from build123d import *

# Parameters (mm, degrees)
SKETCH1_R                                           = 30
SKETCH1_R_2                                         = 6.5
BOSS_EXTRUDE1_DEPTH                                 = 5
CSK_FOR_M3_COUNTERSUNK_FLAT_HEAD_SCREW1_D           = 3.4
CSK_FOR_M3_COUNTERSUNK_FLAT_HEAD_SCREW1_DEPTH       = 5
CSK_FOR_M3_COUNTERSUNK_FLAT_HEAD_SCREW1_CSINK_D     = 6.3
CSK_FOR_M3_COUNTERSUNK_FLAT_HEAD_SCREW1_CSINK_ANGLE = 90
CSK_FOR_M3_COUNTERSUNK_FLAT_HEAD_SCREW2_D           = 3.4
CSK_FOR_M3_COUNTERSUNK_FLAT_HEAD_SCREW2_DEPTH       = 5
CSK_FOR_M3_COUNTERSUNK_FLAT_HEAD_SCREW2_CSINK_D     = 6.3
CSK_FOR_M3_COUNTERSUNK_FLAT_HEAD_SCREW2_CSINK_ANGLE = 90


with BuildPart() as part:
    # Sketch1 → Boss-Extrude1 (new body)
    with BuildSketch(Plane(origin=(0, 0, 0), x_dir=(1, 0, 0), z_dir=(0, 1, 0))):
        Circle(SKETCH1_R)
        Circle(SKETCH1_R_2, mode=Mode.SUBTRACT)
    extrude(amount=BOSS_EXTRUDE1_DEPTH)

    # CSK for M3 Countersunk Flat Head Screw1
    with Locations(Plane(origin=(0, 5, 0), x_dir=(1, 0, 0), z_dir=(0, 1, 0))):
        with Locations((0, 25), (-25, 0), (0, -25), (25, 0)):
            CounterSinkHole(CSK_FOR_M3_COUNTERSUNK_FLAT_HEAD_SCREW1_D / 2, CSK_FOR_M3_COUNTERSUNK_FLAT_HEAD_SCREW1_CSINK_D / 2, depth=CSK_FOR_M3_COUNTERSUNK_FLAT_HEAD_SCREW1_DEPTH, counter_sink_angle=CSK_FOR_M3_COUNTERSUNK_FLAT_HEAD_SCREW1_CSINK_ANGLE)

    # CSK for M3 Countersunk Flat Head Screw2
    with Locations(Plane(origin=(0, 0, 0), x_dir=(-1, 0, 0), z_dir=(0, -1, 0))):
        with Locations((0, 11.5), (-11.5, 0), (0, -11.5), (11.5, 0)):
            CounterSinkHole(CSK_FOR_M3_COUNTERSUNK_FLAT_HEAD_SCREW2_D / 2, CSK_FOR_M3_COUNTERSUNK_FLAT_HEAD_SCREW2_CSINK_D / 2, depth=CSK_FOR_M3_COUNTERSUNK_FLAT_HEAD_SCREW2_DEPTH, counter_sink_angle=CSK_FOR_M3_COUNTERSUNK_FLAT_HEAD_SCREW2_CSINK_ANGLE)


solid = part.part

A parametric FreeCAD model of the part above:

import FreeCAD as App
import Part
import Sketcher
from FreeCAD import Vector

doc = App.newDocument("Part")
body = doc.addObject("PartDesign::Body", "Body")

sketch1 = doc.addObject("Sketcher::SketchObject", "Sketch")
body.addObject(sketch1)
sketch1.AttachmentSupport = (doc.XZ_Plane, [""])
sketch1.MapMode = "FlatFace"
sketch1.addGeometry([
    Part.Circle(Vector(0, 0, 0), Vector(0, 0, 1), 30),
    Part.Circle(Vector(0, 0, 0), Vector(0, 0, 1), 6),
], False)
sketch1.addConstraint([
    Sketcher.Constraint("Coincident", 0, 3, -1, 1),
    Sketcher.Constraint("Coincident", 1, 3, -1, 1),
    Sketcher.Constraint("Diameter", 0, 60.0),
    Sketcher.Constraint("Diameter", 1, 13.0),
])
pad1 = doc.addObject("PartDesign::Pad", "Pad")
body.addObject(pad1)
pad1.Profile = sketch1
pad1.Length = 5
pad1.Reversed = True

sketch2 = doc.addObject("Sketcher::SketchObject", "Sketch001")
body.addObject(sketch2)
sketch2.AttachmentSupport = (doc.XZ_Plane, [""])
sketch2.MapMode = "FlatFace"
sketch2.AttachmentOffset = App.Placement(Vector(0, 0, -5), App.Rotation())
sketch2.addGeometry([
    Part.Circle(Vector(0, -25, 0), Vector(0, 0, 1), 1.7),
    Part.Circle(Vector(-25, 0, 0), Vector(0, 0, 1), 1.7),
    Part.Circle(Vector(0, 25, 0), Vector(0, 0, 1), 1.7),
    Part.Circle(Vector(25, 0, 0), Vector(0, 0, 1), 1.7),
], False)
sketch2.addConstraint([
    Sketcher.Constraint("Equal", 0, 1),
    Sketcher.Constraint("Equal", 1, 2),
    Sketcher.Constraint("Equal", 2, 3),
    Sketcher.Constraint("Symmetric", 0, 3, 2, 3, -1, 1),
    Sketcher.Constraint("Symmetric", 1, 3, 3, 3, -1, 1),
    Sketcher.Constraint("PointOnObject", 0, 3, -2),
    Sketcher.Constraint("PointOnObject", 1, 3, -1),
    Sketcher.Constraint("Diameter", 0, 3.4),
    Sketcher.Constraint("DistanceY", 0, 3, -1, 1, 25.0),
    Sketcher.Constraint("DistanceX", 1, 3, -1, 1, 25.0),
])
doc.recompute()
hole = doc.addObject("PartDesign::Hole", "Hole")
body.addObject(hole)
hole.Profile = sketch2
hole.ThreadType = "None"
hole.Diameter = 3.4
hole.DepthType = "Dimension"
hole.Depth = 5
hole.DrillPoint = "Flat"
hole.HoleCutType = "Countersink"
hole.HoleCutDiameter = 6.3
hole.HoleCutCountersinkAngle = 90
hole.Reversed = True

sketch3 = doc.addObject("Sketcher::SketchObject", "Sketch002")
body.addObject(sketch3)
sketch3.AttachmentSupport = (doc.XZ_Plane, [""])
sketch3.MapMode = "FlatFace"
sketch3.addGeometry([
    Part.Circle(Vector(0, -11.5, 0), Vector(0, 0, 1), 1.7),
    Part.Circle(Vector(11.5, 0, 0), Vector(0, 0, 1), 1.7),
    Part.Circle(Vector(0, 11.5, 0), Vector(0, 0, 1), 1.7),
    Part.Circle(Vector(-11.5, 0, 0), Vector(0, 0, 1), 1.7),
], False)
sketch3.addConstraint([
    Sketcher.Constraint("Equal", 0, 1),
    Sketcher.Constraint("Equal", 1, 2),
    Sketcher.Constraint("Equal", 2, 3),
    Sketcher.Constraint("Symmetric", 0, 3, 2, 3, -1, 1),
    Sketcher.Constraint("Symmetric", 1, 3, 3, 3, -1, 1),
    Sketcher.Constraint("PointOnObject", 0, 3, -2),
    Sketcher.Constraint("PointOnObject", 1, 3, -1),
    Sketcher.Constraint("Diameter", 0, 3.4),
    Sketcher.Constraint("DistanceY", 0, 3, 2, 3, 23.0),
    Sketcher.Constraint("DistanceX", 3, 3, 1, 3, 23.0),
])
doc.recompute()
hole2 = doc.addObject("PartDesign::Hole", "Hole001")
body.addObject(hole2)
hole2.Profile = sketch3
hole2.ThreadType = "None"
hole2.Diameter = 3.4
hole2.DepthType = "Dimension"
hole2.Depth = 5
hole2.DrillPoint = "Flat"
hole2.HoleCutType = "Countersink"
hole2.HoleCutDiameter = 6.3
hole2.HoleCutCountersinkAngle = 90

doc.recompute()
